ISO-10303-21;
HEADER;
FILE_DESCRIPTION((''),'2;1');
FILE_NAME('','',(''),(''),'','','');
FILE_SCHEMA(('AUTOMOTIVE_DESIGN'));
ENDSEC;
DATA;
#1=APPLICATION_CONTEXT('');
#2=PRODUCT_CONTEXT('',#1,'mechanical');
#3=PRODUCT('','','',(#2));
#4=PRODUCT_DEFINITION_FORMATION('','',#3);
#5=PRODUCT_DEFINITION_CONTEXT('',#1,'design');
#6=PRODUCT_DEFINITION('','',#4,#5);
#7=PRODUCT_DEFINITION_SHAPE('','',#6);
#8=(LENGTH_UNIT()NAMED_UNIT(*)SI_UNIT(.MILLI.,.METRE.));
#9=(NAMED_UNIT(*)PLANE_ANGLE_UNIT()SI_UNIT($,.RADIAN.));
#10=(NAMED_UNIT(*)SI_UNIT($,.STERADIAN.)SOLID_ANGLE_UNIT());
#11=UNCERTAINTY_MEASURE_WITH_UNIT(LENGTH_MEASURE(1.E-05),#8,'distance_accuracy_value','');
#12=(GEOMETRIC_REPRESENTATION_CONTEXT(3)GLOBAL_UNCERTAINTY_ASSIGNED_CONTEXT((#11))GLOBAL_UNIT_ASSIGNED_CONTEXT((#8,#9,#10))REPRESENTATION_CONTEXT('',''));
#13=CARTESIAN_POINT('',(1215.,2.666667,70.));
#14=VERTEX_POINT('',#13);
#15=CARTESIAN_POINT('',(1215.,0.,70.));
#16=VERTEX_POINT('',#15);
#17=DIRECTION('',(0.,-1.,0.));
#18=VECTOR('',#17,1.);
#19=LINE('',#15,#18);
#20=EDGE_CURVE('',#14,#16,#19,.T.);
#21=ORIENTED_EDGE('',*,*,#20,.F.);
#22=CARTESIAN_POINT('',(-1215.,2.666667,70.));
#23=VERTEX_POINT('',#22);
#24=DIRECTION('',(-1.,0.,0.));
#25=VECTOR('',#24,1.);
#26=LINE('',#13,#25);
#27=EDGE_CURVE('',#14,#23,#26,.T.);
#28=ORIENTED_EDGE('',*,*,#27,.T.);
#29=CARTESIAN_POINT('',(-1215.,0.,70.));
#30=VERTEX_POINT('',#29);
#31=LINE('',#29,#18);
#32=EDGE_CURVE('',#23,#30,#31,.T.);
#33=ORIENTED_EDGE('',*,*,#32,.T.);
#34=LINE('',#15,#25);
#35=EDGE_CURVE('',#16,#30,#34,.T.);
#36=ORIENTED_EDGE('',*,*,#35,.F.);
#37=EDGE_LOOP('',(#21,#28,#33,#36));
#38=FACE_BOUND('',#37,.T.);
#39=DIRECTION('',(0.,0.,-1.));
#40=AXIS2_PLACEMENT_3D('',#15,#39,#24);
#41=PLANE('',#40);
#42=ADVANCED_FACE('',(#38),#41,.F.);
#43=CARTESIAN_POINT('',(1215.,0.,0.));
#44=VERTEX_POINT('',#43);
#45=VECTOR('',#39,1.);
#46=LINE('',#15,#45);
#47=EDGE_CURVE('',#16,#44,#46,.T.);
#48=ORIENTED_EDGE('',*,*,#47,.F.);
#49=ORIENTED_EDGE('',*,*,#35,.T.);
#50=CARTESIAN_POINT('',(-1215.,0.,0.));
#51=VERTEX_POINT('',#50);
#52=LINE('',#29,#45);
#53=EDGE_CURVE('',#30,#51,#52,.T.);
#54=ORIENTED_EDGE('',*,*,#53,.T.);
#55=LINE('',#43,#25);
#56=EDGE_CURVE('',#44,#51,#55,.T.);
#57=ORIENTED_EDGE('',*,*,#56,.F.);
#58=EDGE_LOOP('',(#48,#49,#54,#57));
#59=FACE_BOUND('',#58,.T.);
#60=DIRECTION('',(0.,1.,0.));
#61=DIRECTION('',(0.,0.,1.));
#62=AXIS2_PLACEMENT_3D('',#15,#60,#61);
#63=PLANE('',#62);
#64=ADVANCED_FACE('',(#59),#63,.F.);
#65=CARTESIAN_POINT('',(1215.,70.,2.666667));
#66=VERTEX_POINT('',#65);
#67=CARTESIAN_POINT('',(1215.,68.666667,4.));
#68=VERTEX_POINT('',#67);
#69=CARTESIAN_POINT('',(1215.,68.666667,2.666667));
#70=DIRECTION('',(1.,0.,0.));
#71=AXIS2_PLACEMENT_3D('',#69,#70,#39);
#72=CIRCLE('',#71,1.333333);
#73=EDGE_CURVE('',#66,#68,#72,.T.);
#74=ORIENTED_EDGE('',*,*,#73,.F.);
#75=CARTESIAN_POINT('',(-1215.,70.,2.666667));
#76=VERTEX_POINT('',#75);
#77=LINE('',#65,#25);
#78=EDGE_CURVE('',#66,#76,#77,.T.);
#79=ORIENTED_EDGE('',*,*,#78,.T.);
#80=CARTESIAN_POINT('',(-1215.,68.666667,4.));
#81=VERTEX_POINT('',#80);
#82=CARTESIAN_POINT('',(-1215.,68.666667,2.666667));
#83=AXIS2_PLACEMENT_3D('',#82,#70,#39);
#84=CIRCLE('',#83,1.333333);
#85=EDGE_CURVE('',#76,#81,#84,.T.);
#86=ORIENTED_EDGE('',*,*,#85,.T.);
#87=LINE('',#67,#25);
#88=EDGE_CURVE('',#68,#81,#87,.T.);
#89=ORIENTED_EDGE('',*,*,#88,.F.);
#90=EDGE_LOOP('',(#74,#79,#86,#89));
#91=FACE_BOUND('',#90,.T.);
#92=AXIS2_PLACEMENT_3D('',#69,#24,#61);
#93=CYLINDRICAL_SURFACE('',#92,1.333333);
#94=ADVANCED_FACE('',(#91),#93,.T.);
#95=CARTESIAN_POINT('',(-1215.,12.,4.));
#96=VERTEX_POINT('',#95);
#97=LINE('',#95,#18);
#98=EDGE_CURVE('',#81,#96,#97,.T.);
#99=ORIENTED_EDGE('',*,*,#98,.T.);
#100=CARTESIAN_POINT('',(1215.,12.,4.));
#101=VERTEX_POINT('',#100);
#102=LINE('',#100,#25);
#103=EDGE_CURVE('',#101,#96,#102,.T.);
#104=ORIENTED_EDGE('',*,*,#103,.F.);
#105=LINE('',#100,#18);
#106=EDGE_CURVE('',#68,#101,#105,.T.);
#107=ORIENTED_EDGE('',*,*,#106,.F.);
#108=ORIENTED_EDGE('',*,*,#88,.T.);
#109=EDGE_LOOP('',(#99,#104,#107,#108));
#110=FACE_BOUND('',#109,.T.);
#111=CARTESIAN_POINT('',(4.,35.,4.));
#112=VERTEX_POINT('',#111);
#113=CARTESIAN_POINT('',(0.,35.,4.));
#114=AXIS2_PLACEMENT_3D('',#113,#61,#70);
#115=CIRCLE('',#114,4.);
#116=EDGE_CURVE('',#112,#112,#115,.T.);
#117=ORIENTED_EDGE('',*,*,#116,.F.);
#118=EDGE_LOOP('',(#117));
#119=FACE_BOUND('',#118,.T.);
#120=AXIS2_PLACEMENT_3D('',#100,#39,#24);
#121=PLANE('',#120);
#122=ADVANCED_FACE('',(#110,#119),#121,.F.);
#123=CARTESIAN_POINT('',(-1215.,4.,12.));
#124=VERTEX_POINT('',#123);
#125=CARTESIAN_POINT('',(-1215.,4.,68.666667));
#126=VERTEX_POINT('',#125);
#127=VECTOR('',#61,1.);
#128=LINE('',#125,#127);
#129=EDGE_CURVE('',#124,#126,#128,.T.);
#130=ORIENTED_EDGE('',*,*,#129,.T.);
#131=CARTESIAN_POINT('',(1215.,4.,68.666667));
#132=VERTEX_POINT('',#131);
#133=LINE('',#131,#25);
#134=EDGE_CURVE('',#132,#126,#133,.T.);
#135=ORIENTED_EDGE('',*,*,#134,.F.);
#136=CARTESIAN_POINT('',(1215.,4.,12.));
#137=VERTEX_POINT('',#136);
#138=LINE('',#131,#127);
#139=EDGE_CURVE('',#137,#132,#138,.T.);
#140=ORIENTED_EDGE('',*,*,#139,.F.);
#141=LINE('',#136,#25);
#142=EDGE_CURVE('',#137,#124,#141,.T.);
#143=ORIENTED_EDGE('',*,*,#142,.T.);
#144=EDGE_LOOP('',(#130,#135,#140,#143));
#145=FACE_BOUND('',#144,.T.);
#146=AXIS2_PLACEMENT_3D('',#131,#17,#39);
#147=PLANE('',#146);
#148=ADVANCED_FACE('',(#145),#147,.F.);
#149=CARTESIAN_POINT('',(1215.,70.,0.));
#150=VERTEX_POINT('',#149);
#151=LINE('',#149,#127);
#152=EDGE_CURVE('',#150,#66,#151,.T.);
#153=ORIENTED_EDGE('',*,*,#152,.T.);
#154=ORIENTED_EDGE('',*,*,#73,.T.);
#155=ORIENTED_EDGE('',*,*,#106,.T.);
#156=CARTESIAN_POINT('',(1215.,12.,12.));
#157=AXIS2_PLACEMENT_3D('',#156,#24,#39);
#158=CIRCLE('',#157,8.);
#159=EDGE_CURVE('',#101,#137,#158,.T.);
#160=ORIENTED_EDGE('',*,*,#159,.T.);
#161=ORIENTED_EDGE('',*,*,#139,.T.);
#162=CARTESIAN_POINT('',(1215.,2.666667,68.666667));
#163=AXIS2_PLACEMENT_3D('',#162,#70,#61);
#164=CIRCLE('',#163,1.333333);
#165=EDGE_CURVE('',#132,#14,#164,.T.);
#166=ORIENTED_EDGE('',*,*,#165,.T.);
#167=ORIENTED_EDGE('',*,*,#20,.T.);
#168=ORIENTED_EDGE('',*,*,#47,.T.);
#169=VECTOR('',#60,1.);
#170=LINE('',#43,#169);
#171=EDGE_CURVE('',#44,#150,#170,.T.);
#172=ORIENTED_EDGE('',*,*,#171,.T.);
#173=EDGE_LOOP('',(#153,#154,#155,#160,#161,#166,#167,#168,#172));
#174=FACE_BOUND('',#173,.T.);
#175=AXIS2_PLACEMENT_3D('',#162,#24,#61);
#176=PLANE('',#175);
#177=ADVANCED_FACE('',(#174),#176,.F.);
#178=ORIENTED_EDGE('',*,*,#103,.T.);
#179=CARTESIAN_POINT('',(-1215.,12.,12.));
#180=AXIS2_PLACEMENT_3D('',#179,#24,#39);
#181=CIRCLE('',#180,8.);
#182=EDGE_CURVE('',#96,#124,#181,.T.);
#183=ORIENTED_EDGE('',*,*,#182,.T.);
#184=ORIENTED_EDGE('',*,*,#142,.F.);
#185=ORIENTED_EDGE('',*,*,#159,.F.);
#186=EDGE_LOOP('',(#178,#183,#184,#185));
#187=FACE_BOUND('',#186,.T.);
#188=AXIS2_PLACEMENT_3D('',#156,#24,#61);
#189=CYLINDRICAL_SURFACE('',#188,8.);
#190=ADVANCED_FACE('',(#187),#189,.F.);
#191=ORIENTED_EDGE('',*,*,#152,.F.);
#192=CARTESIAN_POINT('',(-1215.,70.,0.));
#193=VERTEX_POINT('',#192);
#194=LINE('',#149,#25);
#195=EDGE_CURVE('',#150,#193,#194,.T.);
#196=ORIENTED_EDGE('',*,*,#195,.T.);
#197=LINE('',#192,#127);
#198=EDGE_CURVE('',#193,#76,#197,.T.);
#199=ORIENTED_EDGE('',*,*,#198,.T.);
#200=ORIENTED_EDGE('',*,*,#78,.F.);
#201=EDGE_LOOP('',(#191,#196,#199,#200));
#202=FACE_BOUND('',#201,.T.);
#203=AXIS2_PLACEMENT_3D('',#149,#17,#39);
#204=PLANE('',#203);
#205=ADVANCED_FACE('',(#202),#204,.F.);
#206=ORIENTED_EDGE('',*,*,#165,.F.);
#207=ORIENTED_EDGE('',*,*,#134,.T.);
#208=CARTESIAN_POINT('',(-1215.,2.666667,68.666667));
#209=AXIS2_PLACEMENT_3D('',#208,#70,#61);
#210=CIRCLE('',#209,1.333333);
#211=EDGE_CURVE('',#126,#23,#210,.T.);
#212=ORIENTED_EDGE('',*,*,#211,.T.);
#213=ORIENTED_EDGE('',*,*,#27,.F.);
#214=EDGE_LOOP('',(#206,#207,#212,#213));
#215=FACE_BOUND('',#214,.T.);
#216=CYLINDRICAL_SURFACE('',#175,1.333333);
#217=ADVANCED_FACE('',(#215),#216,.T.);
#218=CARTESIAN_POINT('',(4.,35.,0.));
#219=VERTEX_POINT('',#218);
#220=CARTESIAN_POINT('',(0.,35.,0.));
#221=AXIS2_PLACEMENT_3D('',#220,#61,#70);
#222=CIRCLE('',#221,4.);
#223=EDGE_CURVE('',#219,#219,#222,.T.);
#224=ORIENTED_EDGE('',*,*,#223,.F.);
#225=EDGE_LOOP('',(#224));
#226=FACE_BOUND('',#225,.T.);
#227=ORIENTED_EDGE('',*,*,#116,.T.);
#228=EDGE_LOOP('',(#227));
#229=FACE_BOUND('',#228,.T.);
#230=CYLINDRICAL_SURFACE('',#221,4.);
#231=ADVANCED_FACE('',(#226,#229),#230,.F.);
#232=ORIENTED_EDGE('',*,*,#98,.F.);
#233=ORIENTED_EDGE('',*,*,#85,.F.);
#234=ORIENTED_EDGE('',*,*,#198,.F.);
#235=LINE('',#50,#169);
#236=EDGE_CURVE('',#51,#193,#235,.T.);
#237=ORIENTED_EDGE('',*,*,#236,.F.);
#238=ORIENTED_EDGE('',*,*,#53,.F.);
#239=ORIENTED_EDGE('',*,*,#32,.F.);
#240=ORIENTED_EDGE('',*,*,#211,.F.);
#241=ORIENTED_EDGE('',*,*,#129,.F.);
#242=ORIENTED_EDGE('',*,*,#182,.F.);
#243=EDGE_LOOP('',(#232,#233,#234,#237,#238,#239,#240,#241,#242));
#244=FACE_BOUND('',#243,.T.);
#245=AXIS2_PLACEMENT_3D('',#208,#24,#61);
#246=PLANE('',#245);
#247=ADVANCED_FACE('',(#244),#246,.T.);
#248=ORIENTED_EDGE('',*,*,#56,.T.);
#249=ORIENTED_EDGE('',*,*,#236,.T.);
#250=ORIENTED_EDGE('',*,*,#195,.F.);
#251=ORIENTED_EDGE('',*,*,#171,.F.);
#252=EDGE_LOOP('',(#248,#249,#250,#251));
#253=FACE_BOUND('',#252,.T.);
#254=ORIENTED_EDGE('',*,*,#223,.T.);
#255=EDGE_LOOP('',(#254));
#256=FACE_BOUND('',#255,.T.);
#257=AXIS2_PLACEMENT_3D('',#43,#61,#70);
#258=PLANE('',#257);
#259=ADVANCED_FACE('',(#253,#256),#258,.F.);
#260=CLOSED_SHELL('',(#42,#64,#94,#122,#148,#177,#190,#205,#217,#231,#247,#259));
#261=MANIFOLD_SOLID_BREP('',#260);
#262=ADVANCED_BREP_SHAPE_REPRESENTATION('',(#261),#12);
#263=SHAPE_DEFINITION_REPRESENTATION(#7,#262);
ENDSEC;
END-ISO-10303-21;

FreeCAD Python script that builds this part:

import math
import FreeCAD as App
import Part
import Sketcher

V = App.Vector

doc = App.newDocument("Part")
body = doc.addObject("PartDesign::Body", "Body")

sketch1 = doc.addObject("Sketcher::SketchObject", "Sketch")
body.addObject(sketch1)
sketch1.AttachmentSupport = (doc.YZ_Plane, [""])
sketch1.MapMode = "FlatFace"
sketch1.addGeometry([
    Part.LineSegment(V(0, 70, 0), V(0, 0, 0)),
    Part.LineSegment(V(0, 0, 0), V(70, 0, 0)),
    Part.LineSegment(V(70, 0, 0), V(70, 2.7, 0)),
    Part.ArcOfCircle(Part.Circle(V(68.7, 2.7, 0), V(0, 0, 1), 1.3), math.radians(0), math.radians(90)),
    Part.LineSegment(V(68.7, 4, 0), V(12, 4, 0)),
    Part.ArcOfCircle(Part.Circle(V(12, 12, 0), V(0, 0, 1), 8), math.radians(-180), math.radians(-90)),
    Part.LineSegment(V(4, 12, 0), V(4, 68.7, 0)),
    Part.ArcOfCircle(Part.Circle(V(2.7, 68.7, 0), V(0, 0, 1), 1.3), math.radians(0), math.radians(90)),
    Part.LineSegment(V(2.7, 70, 0), V(0, 70, 0)),
], False)
sketch1.addConstraint([
    Sketcher.Constraint("Coincident", 0, 2, 1, 1),
    Sketcher.Constraint("Coincident", 1, 2, 2, 1),
    Sketcher.Constraint("Tangent", 2, 2, 3, 1),
    Sketcher.Constraint("Tangent", 3, 2, 4, 1),
    Sketcher.Constraint("Tangent", 4, 2, 5, 2),
    Sketcher.Constraint("Tangent", 5, 1, 6, 1),
    Sketcher.Constraint("Tangent", 6, 2, 7, 1),
    Sketcher.Constraint("Tangent", 7, 2, 8, 1),
    Sketcher.Constraint("Coincident", 8, 2, 0, 1),
    Sketcher.Constraint("Vertical", 0),
    Sketcher.Constraint("Horizontal", 1),
    Sketcher.Constraint("Vertical", 2),
    Sketcher.Constraint("Horizontal", 4),
    Sketcher.Constraint("Vertical", 6),
    Sketcher.Constraint("Horizontal", 8),
    Sketcher.Constraint("Coincident", 0, 2, -1, 1),
    Sketcher.Constraint("Equal", 3, 7),
    Sketcher.Constraint("Equal", 1, 0),
    Sketcher.Constraint("Equal", 8, 2),
    Sketcher.Constraint("Radius", 5, 8.0),
    Sketcher.Constraint("DistanceX", 1, 1, 1, 2, 70.0),
    Sketcher.Constraint("DistanceX", -1, 1, 5, 3, 12.0),
    Sketcher.Constraint("Radius", 3, 1.333333),
])
pad1 = doc.addObject("PartDesign::Pad", "Pad")
body.addObject(pad1)
pad1.Profile = sketch1
pad1.Length = 2430
pad1.Midplane = True

sketch2 = doc.addObject("Sketcher::SketchObject", "Sketch001")
body.addObject(sketch2)
sketch2.AttachmentSupport = (doc.XY_Plane, [""])
sketch2.MapMode = "FlatFace"
sketch2.AttachmentOffset = App.Placement(V(0, 0, 4), App.Rotation())
sketch2.addGeometry(Part.Circle(V(0, 35, 0), V(0, 0, 1), 4), False)
sketch2.addConstraint([
    Sketcher.Constraint("PointOnObject", 0, 3, -2),
    Sketcher.Constraint("Diameter", 0, 8.0),
    Sketcher.Constraint("DistanceY", -1, 1, 0, 3, 35.0),
])
pocket1 = doc.addObject("PartDesign::Pocket", "Pocket")
body.addObject(pocket1)
pocket1.Profile = sketch2
pocket1.Type = "ThroughAll"

doc.recompute()
